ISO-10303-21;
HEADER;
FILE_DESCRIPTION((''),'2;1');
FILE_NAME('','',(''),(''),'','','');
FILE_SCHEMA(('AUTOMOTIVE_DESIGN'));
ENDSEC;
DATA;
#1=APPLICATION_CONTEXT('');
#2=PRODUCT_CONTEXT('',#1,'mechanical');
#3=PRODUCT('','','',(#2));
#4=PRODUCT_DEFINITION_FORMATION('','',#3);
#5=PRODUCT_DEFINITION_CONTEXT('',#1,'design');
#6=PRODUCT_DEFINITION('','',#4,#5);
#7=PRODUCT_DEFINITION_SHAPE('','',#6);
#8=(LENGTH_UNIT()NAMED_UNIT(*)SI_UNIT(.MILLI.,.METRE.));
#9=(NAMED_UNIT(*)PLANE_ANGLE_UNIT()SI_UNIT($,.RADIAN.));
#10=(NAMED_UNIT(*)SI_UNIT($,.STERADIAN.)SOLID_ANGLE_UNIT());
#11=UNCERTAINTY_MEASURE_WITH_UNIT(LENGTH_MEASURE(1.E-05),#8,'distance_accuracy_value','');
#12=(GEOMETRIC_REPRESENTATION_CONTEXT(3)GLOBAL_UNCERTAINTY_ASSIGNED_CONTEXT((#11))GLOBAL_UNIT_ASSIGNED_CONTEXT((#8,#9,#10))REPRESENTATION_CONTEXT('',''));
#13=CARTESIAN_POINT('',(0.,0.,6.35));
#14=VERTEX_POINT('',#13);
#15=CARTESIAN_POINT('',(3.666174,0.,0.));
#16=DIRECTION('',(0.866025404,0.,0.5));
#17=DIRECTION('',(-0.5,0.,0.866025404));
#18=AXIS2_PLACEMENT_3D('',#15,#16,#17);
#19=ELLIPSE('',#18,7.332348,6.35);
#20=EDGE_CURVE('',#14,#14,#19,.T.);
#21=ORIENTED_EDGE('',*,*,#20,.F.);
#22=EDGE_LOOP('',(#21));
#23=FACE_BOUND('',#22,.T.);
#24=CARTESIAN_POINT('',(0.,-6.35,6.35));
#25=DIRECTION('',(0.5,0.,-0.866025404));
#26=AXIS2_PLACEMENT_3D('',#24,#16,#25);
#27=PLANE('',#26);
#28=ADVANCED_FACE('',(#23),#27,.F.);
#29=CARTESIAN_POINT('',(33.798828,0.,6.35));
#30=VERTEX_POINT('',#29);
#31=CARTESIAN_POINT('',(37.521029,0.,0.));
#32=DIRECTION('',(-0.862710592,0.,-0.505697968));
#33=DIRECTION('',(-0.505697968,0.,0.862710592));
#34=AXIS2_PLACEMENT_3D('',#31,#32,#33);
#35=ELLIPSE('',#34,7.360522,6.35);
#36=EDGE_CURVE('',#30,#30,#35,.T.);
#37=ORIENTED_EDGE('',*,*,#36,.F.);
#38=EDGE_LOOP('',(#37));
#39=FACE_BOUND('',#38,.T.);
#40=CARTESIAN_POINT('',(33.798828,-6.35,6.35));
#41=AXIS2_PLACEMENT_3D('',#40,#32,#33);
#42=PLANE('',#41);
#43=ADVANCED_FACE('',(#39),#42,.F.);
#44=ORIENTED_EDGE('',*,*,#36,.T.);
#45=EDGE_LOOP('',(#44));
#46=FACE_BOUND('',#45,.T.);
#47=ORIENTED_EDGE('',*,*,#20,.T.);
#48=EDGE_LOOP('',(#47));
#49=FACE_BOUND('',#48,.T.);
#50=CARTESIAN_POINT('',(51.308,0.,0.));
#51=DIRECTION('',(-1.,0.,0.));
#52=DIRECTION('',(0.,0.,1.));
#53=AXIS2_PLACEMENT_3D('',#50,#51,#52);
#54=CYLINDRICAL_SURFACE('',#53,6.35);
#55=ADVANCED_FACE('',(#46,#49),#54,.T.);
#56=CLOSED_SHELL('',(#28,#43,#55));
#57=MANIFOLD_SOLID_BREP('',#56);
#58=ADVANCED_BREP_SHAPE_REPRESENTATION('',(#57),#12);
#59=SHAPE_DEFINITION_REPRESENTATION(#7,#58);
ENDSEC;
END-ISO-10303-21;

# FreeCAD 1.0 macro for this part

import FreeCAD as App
import Part
import Sketcher

V = App.Vector
Q = App.Units.Quantity


def add_polygon(sketch, points):
    """Adds a closed chain of lines whose ends are joined by coincident constraints."""
    first, n = sketch.GeometryCount, len(points)
    for a, b in zip(points, points[1:] + points[:1]):
        sketch.addGeometry(Part.LineSegment(App.Vector(*a, 0), App.Vector(*b, 0)), False)
    for i in range(n):
        sketch.addConstraint(Sketcher.Constraint("Coincident", first + i, 2, first + (i + 1) % n, 1))

doc = App.newDocument("Part")
body = doc.addObject("PartDesign::Body", "Body")

# Sketch on YZ plane
sketch1 = body.newObject("Sketcher::SketchObject", "Sketch")
sketch1.AttachmentSupport = (doc.getObject("YZ_Plane"), [""])
sketch1.MapMode = "FlatFace"
sketch1.addGeometry(Part.Circle(V(0, 0, 0), V(0, 0, 1), 6.35), False)
sketch1.addConstraint([
    Sketcher.Constraint("Coincident", 0, 3, -1, 1),
    Sketcher.Constraint("Diameter", 0, Q("0.5 in")),
])
pad1 = body.newObject("PartDesign::Pad", "Pad")
pad1.Profile = sketch1
pad1.Length = Q("2.02 in")

# Sketch on XZ plane
sketch2 = body.newObject("Sketcher::SketchObject", "Sketch001")
sketch2.AttachmentSupport = (doc.getObject("XZ_Plane"), [""])
sketch2.MapMode = "FlatFace"
add_polygon(sketch2, [(0, 6.35), (7.332348, -6.35), (0, -6.35)])  # lines 0-2
sketch2.addConstraint([
    Sketcher.Constraint("Horizontal", 1),
    Sketcher.Constraint("Vertical", 2),
    Sketcher.Constraint("Symmetric", 1, 2, 2, 2, -1, 1),
    Sketcher.Constraint("DistanceY", 2, 1, 2, 2, Q("0.5 in")),
    Sketcher.Constraint("Angle", 0, Q("-60 deg")),
])
pocket1 = body.newObject("PartDesign::Pocket", "Pocket")
pocket1.Profile = sketch2
pocket1.Type = "ThroughAll"
pocket1.Midplane = True

# Sketch on XZ plane
sketch3 = body.newObject("Sketcher::SketchObject", "Sketch002")
sketch3.AttachmentSupport = (doc.getObject("XZ_Plane"), [""])
sketch3.MapMode = "FlatFace"
add_polygon(sketch3, [(41.24323, -6.35), (33.798828, 6.35), (51.308, 6.35), (51.308, -6.35)])  # lines 0-3
sketch3.addConstraint([
    Sketcher.Constraint("Horizontal", 1),
    Sketcher.Constraint("Vertical", 2),
    Sketcher.Constraint("Horizontal", 3),
    Sketcher.Constraint("DistanceY", 2, 2, 2, 1, Q("0.5 in")),
    Sketcher.Constraint("DistanceY", -1, 1, 0, 2, Q("0.25 in")),
    Sketcher.Constraint("DistanceX", -1, 1, 1, 2, Q("2.02 in")),
    Sketcher.Constraint("DistanceX", 1, 1, 1, 2, Q("17.509172 mm")),
    Sketcher.Constraint("DistanceX", 3, 2, 3, 1, Q("10.06477 mm")),
])
pocket2 = body.newObject("PartDesign::Pocket", "Pocket001")
pocket2.Profile = sketch3
pocket2.Type = "ThroughAll"
pocket2.Midplane = True

doc.recompute()
